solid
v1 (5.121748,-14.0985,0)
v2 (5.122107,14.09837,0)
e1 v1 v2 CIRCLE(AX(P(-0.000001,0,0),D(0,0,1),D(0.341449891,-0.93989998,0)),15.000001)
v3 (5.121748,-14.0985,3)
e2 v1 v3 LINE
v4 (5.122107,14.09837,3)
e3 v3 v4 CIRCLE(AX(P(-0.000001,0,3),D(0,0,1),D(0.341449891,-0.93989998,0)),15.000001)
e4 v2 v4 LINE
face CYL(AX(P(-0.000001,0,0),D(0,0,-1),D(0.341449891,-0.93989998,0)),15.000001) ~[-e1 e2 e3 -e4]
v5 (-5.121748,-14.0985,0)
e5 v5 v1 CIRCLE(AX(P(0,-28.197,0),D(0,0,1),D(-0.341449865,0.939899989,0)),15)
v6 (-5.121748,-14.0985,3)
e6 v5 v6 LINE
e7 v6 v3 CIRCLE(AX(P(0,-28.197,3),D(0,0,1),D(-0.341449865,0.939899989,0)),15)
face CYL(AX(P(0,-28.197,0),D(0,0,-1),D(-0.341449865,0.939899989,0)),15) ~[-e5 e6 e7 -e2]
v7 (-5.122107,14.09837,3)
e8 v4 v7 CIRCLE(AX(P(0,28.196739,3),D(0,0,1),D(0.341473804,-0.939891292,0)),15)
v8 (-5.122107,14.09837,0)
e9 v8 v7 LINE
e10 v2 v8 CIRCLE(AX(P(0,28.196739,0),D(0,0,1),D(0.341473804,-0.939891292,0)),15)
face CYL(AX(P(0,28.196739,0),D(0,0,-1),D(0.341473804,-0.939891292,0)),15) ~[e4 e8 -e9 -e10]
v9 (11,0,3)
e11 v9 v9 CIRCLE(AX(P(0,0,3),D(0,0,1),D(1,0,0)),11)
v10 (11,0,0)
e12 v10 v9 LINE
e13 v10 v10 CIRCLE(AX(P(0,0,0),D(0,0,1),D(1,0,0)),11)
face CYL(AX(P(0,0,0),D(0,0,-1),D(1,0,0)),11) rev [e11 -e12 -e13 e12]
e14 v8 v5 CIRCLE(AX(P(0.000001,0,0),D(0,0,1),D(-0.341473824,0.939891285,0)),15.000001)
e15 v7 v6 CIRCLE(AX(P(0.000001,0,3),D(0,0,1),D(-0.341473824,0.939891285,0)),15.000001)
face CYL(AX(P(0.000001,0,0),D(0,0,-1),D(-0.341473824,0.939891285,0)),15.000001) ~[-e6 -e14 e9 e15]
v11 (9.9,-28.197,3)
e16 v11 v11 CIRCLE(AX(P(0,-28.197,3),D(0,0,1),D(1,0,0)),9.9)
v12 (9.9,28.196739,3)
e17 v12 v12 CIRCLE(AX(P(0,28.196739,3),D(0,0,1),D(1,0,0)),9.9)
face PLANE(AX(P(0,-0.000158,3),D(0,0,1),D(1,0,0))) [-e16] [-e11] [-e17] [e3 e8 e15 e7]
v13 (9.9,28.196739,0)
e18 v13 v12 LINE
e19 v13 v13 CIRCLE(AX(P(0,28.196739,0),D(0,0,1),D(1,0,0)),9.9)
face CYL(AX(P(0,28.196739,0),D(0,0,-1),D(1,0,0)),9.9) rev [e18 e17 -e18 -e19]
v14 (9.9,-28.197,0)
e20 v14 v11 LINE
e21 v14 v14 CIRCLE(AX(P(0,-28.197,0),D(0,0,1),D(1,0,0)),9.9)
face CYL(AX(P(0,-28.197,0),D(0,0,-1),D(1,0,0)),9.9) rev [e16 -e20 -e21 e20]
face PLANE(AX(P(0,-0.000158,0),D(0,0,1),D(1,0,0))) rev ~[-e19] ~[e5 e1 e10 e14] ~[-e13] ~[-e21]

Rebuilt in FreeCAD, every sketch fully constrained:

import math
import FreeCAD as App
import Part
import Sketcher
from FreeCAD import Vector

doc = App.newDocument("Part")
body = doc.addObject("PartDesign::Body", "Body")

sketch1 = body.newObject("Sketcher::SketchObject", "Sketch")
sketch1.AttachmentSupport = (doc.getObject("XY_Plane"), [""])
sketch1.MapMode = "FlatFace"
sketch1.addGeometry(Part.ArcOfCircle(Part.Circle(Vector(0, 28.196739, 0), Vector(0, 0, 1), 15), math.radians(-70.033308), math.radians(250.033308)), False)
sketch1.addGeometry(Part.ArcOfCircle(Part.Circle(Vector(0.000001, 0, 0), Vector(0, 0, 1), 15.000001), math.radians(109.966693), math.radians(250.034766)), False)
sketch1.addGeometry(Part.ArcOfCircle(Part.Circle(Vector(0, -28.197, 0), Vector(0, 0, 1), 15), math.radians(109.965232), math.radians(430.034768)), False)
sketch1.addGeometry(Part.ArcOfCircle(Part.Circle(Vector(-0.000001, 0, 0), Vector(0, 0, 1), 15.000001), math.radians(-70.034766), math.radians(70.033307)), False)
sketch1.addGeometry(Part.Circle(Vector(0, -28.197, 0), Vector(0, 0, 1), 9.9), False)
sketch1.addGeometry(Part.Circle(Vector(0, 0, 0), Vector(0, 0, 1), 11), False)
sketch1.addGeometry(Part.Circle(Vector(0, 28.196739, 0), Vector(0, 0, 1), 9.9), False)
sketch1.addConstraint(Sketcher.Constraint("Coincident", 0, 2, 1, 1))
sketch1.addConstraint(Sketcher.Constraint("Coincident", 1, 2, 2, 1))
sketch1.addConstraint(Sketcher.Constraint("Coincident", 2, 2, 3, 1))
sketch1.addConstraint(Sketcher.Constraint("Coincident", 3, 2, 0, 1))
sketch1.addConstraint(Sketcher.Constraint("Coincident", 1, 3, -1, 1))
sketch1.addConstraint(Sketcher.Constraint("Coincident", 3, 3, -1, 1))
sketch1.addConstraint(Sketcher.Constraint("Coincident", 5, 3, -1, 1))
sketch1.addConstraint(Sketcher.Constraint("Coincident", 4, 3, 2, 3))
sketch1.addConstraint(Sketcher.Constraint("Coincident", 6, 3, 0, 3))
sketch1.addConstraint(Sketcher.Constraint("Equal", 0, 1))
sketch1.addConstraint(Sketcher.Constraint("Equal", 1, 2))
sketch1.addConstraint(Sketcher.Constraint("Equal", 2, 3))
sketch1.addConstraint(Sketcher.Constraint("Equal", 4, 6))
sketch1.addConstraint(Sketcher.Constraint("PointOnObject", 0, 3, -2))
sketch1.addConstraint(Sketcher.Constraint("PointOnObject", 2, 3, -2))
sketch1.addConstraint(Sketcher.Constraint("Diameter", 5, 22.0))
sketch1.addConstraint(Sketcher.Constraint("Radius", 0, 15.0))
sketch1.addConstraint(Sketcher.Constraint("Diameter", 4, 19.8))
sketch1.addConstraint(Sketcher.Constraint("DistanceY", 2, 3, -1, 1, 28.197))
sketch1.addConstraint(Sketcher.Constraint("DistanceY", -1, 1, 0, 3, 28.196739))
pad1 = body.newObject("PartDesign::Pad", "Pad")
pad1.Profile = sketch1
pad1.Length = 3

doc.recompute()
